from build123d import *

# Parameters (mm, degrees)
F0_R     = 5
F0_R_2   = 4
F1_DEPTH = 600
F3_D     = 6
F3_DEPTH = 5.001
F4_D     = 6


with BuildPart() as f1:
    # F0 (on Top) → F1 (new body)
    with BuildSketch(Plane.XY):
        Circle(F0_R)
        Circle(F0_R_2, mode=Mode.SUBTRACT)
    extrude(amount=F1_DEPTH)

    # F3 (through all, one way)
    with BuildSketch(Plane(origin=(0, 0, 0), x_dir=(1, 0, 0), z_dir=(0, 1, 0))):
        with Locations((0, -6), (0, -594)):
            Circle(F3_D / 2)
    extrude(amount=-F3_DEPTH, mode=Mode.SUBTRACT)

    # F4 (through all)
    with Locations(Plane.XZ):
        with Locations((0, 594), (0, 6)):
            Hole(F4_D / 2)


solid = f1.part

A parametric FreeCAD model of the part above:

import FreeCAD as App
import Part
import Sketcher

V = App.Vector
Q = App.Units.Quantity

doc = App.newDocument("Part")
params = doc.addObject("Spreadsheet::Sheet", "Params")
for row, (alias, value) in enumerate([
    ("sketch1_diameter", "10 mm"),
    ("sketch1_diameter2", "8 mm"),
    ("pad1_length", "600 mm"),
    ("sketch2_diameter", "6 mm"),
    ("sketch3_diameter", "6 mm"),
    ("hole_diameter", "6 mm"),
], start=1):
    params.set(f"A{row}", alias)
    params.set(f"B{row}", "=" + value)
    params.setAlias(f"B{row}", alias)

body = doc.addObject("PartDesign::Body", "Body")

# Sketch on XY plane
sketch1 = body.newObject("Sketcher::SketchObject", "Sketch")
sketch1.AttachmentSupport = (doc.getObject("XY_Plane"), [""])
sketch1.MapMode = "FlatFace"
sketch1.addGeometry(Part.Circle(V(0, 0, 0), V(0, 0, 1), 5), False)
sketch1.addGeometry(Part.Circle(V(0, 0, 0), V(0, 0, 1), 4), False)
sketch1.addConstraint(Sketcher.Constraint("Coincident", 0, 3, -1, 1))
sketch1.addConstraint(Sketcher.Constraint("Coincident", 1, 3, -1, 1))
sketch1.addConstraint(Sketcher.Constraint("Diameter", 0, Q("10 mm")))
sketch1.addConstraint(Sketcher.Constraint("Diameter", 1, Q("8 mm")))
sketch1.setExpression("Constraints[2]", "Params.sketch1_diameter")
sketch1.setExpression("Constraints[3]", "Params.sketch1_diameter2")
pad1 = body.newObject("PartDesign::Pad", "Pad")
pad1.Profile = sketch1
pad1.setExpression("Length", "Params.pad1_length")

# Sketch on XZ plane
sketch2 = body.newObject("Sketcher::SketchObject", "Sketch001")
sketch2.AttachmentSupport = (doc.getObject("XZ_Plane"), [""])
sketch2.MapMode = "FlatFace"
sketch2.addGeometry(Part.Circle(V(0, 594, 0), V(0, 0, 1), 3), False)
sketch2.addGeometry(Part.Circle(V(0, 6, 0), V(0, 0, 1), 3), False)
sketch2.addConstraint(Sketcher.Constraint("Equal", 0, 1))
sketch2.addConstraint(Sketcher.Constraint("PointOnObject", 0, 3, -2))
sketch2.addConstraint(Sketcher.Constraint("PointOnObject", 1, 3, -2))
sketch2.addConstraint(Sketcher.Constraint("Diameter", 0, Q("6 mm")))
sketch2.addConstraint(Sketcher.Constraint("DistanceY", -1, 1, 0, 3, Q("594 mm")))
sketch2.addConstraint(Sketcher.Constraint("DistanceY", -1, 1, 1, 3, Q("6 mm")))
sketch2.setExpression("Constraints[3]", "Params.sketch2_diameter")
pocket1 = body.newObject("PartDesign::Pocket", "Pocket")
pocket1.Profile = sketch2
pocket1.Type = "ThroughAll"
pocket1.Reversed = True

# Sketch on XZ plane
sketch3 = body.newObject("Sketcher::SketchObject", "Sketch002")
sketch3.AttachmentSupport = (doc.getObject("XZ_Plane"), [""])
sketch3.MapMode = "FlatFace"
sketch3.addGeometry(Part.Circle(V(0, 594, 0), V(0, 0, 1), 3), False)
sketch3.addGeometry(Part.Circle(V(0, 6, 0), V(0, 0, 1), 3), False)
sketch3.addConstraint(Sketcher.Constraint("Equal", 0, 1))
sketch3.addConstraint(Sketcher.Constraint("PointOnObject", 0, 3, -2))
sketch3.addConstraint(Sketcher.Constraint("PointOnObject", 1, 3, -2))
sketch3.addConstraint(Sketcher.Constraint("Diameter", 0, Q("6 mm")))
sketch3.addConstraint(Sketcher.Constraint("DistanceY", -1, 1, 0, 3, Q("594 mm")))
sketch3.addConstraint(Sketcher.Constraint("DistanceY", -1, 1, 1, 3, Q("6 mm")))
sketch3.setExpression("Constraints[3]", "Params.sketch3_diameter")
doc.recompute()
hole = body.newObject("PartDesign::Hole", "Hole")
hole.Profile = sketch3
hole.ThreadType = "None"
hole.setExpression("Diameter", "Params.hole_diameter")
hole.DepthType = "ThroughAll"

doc.recompute()
